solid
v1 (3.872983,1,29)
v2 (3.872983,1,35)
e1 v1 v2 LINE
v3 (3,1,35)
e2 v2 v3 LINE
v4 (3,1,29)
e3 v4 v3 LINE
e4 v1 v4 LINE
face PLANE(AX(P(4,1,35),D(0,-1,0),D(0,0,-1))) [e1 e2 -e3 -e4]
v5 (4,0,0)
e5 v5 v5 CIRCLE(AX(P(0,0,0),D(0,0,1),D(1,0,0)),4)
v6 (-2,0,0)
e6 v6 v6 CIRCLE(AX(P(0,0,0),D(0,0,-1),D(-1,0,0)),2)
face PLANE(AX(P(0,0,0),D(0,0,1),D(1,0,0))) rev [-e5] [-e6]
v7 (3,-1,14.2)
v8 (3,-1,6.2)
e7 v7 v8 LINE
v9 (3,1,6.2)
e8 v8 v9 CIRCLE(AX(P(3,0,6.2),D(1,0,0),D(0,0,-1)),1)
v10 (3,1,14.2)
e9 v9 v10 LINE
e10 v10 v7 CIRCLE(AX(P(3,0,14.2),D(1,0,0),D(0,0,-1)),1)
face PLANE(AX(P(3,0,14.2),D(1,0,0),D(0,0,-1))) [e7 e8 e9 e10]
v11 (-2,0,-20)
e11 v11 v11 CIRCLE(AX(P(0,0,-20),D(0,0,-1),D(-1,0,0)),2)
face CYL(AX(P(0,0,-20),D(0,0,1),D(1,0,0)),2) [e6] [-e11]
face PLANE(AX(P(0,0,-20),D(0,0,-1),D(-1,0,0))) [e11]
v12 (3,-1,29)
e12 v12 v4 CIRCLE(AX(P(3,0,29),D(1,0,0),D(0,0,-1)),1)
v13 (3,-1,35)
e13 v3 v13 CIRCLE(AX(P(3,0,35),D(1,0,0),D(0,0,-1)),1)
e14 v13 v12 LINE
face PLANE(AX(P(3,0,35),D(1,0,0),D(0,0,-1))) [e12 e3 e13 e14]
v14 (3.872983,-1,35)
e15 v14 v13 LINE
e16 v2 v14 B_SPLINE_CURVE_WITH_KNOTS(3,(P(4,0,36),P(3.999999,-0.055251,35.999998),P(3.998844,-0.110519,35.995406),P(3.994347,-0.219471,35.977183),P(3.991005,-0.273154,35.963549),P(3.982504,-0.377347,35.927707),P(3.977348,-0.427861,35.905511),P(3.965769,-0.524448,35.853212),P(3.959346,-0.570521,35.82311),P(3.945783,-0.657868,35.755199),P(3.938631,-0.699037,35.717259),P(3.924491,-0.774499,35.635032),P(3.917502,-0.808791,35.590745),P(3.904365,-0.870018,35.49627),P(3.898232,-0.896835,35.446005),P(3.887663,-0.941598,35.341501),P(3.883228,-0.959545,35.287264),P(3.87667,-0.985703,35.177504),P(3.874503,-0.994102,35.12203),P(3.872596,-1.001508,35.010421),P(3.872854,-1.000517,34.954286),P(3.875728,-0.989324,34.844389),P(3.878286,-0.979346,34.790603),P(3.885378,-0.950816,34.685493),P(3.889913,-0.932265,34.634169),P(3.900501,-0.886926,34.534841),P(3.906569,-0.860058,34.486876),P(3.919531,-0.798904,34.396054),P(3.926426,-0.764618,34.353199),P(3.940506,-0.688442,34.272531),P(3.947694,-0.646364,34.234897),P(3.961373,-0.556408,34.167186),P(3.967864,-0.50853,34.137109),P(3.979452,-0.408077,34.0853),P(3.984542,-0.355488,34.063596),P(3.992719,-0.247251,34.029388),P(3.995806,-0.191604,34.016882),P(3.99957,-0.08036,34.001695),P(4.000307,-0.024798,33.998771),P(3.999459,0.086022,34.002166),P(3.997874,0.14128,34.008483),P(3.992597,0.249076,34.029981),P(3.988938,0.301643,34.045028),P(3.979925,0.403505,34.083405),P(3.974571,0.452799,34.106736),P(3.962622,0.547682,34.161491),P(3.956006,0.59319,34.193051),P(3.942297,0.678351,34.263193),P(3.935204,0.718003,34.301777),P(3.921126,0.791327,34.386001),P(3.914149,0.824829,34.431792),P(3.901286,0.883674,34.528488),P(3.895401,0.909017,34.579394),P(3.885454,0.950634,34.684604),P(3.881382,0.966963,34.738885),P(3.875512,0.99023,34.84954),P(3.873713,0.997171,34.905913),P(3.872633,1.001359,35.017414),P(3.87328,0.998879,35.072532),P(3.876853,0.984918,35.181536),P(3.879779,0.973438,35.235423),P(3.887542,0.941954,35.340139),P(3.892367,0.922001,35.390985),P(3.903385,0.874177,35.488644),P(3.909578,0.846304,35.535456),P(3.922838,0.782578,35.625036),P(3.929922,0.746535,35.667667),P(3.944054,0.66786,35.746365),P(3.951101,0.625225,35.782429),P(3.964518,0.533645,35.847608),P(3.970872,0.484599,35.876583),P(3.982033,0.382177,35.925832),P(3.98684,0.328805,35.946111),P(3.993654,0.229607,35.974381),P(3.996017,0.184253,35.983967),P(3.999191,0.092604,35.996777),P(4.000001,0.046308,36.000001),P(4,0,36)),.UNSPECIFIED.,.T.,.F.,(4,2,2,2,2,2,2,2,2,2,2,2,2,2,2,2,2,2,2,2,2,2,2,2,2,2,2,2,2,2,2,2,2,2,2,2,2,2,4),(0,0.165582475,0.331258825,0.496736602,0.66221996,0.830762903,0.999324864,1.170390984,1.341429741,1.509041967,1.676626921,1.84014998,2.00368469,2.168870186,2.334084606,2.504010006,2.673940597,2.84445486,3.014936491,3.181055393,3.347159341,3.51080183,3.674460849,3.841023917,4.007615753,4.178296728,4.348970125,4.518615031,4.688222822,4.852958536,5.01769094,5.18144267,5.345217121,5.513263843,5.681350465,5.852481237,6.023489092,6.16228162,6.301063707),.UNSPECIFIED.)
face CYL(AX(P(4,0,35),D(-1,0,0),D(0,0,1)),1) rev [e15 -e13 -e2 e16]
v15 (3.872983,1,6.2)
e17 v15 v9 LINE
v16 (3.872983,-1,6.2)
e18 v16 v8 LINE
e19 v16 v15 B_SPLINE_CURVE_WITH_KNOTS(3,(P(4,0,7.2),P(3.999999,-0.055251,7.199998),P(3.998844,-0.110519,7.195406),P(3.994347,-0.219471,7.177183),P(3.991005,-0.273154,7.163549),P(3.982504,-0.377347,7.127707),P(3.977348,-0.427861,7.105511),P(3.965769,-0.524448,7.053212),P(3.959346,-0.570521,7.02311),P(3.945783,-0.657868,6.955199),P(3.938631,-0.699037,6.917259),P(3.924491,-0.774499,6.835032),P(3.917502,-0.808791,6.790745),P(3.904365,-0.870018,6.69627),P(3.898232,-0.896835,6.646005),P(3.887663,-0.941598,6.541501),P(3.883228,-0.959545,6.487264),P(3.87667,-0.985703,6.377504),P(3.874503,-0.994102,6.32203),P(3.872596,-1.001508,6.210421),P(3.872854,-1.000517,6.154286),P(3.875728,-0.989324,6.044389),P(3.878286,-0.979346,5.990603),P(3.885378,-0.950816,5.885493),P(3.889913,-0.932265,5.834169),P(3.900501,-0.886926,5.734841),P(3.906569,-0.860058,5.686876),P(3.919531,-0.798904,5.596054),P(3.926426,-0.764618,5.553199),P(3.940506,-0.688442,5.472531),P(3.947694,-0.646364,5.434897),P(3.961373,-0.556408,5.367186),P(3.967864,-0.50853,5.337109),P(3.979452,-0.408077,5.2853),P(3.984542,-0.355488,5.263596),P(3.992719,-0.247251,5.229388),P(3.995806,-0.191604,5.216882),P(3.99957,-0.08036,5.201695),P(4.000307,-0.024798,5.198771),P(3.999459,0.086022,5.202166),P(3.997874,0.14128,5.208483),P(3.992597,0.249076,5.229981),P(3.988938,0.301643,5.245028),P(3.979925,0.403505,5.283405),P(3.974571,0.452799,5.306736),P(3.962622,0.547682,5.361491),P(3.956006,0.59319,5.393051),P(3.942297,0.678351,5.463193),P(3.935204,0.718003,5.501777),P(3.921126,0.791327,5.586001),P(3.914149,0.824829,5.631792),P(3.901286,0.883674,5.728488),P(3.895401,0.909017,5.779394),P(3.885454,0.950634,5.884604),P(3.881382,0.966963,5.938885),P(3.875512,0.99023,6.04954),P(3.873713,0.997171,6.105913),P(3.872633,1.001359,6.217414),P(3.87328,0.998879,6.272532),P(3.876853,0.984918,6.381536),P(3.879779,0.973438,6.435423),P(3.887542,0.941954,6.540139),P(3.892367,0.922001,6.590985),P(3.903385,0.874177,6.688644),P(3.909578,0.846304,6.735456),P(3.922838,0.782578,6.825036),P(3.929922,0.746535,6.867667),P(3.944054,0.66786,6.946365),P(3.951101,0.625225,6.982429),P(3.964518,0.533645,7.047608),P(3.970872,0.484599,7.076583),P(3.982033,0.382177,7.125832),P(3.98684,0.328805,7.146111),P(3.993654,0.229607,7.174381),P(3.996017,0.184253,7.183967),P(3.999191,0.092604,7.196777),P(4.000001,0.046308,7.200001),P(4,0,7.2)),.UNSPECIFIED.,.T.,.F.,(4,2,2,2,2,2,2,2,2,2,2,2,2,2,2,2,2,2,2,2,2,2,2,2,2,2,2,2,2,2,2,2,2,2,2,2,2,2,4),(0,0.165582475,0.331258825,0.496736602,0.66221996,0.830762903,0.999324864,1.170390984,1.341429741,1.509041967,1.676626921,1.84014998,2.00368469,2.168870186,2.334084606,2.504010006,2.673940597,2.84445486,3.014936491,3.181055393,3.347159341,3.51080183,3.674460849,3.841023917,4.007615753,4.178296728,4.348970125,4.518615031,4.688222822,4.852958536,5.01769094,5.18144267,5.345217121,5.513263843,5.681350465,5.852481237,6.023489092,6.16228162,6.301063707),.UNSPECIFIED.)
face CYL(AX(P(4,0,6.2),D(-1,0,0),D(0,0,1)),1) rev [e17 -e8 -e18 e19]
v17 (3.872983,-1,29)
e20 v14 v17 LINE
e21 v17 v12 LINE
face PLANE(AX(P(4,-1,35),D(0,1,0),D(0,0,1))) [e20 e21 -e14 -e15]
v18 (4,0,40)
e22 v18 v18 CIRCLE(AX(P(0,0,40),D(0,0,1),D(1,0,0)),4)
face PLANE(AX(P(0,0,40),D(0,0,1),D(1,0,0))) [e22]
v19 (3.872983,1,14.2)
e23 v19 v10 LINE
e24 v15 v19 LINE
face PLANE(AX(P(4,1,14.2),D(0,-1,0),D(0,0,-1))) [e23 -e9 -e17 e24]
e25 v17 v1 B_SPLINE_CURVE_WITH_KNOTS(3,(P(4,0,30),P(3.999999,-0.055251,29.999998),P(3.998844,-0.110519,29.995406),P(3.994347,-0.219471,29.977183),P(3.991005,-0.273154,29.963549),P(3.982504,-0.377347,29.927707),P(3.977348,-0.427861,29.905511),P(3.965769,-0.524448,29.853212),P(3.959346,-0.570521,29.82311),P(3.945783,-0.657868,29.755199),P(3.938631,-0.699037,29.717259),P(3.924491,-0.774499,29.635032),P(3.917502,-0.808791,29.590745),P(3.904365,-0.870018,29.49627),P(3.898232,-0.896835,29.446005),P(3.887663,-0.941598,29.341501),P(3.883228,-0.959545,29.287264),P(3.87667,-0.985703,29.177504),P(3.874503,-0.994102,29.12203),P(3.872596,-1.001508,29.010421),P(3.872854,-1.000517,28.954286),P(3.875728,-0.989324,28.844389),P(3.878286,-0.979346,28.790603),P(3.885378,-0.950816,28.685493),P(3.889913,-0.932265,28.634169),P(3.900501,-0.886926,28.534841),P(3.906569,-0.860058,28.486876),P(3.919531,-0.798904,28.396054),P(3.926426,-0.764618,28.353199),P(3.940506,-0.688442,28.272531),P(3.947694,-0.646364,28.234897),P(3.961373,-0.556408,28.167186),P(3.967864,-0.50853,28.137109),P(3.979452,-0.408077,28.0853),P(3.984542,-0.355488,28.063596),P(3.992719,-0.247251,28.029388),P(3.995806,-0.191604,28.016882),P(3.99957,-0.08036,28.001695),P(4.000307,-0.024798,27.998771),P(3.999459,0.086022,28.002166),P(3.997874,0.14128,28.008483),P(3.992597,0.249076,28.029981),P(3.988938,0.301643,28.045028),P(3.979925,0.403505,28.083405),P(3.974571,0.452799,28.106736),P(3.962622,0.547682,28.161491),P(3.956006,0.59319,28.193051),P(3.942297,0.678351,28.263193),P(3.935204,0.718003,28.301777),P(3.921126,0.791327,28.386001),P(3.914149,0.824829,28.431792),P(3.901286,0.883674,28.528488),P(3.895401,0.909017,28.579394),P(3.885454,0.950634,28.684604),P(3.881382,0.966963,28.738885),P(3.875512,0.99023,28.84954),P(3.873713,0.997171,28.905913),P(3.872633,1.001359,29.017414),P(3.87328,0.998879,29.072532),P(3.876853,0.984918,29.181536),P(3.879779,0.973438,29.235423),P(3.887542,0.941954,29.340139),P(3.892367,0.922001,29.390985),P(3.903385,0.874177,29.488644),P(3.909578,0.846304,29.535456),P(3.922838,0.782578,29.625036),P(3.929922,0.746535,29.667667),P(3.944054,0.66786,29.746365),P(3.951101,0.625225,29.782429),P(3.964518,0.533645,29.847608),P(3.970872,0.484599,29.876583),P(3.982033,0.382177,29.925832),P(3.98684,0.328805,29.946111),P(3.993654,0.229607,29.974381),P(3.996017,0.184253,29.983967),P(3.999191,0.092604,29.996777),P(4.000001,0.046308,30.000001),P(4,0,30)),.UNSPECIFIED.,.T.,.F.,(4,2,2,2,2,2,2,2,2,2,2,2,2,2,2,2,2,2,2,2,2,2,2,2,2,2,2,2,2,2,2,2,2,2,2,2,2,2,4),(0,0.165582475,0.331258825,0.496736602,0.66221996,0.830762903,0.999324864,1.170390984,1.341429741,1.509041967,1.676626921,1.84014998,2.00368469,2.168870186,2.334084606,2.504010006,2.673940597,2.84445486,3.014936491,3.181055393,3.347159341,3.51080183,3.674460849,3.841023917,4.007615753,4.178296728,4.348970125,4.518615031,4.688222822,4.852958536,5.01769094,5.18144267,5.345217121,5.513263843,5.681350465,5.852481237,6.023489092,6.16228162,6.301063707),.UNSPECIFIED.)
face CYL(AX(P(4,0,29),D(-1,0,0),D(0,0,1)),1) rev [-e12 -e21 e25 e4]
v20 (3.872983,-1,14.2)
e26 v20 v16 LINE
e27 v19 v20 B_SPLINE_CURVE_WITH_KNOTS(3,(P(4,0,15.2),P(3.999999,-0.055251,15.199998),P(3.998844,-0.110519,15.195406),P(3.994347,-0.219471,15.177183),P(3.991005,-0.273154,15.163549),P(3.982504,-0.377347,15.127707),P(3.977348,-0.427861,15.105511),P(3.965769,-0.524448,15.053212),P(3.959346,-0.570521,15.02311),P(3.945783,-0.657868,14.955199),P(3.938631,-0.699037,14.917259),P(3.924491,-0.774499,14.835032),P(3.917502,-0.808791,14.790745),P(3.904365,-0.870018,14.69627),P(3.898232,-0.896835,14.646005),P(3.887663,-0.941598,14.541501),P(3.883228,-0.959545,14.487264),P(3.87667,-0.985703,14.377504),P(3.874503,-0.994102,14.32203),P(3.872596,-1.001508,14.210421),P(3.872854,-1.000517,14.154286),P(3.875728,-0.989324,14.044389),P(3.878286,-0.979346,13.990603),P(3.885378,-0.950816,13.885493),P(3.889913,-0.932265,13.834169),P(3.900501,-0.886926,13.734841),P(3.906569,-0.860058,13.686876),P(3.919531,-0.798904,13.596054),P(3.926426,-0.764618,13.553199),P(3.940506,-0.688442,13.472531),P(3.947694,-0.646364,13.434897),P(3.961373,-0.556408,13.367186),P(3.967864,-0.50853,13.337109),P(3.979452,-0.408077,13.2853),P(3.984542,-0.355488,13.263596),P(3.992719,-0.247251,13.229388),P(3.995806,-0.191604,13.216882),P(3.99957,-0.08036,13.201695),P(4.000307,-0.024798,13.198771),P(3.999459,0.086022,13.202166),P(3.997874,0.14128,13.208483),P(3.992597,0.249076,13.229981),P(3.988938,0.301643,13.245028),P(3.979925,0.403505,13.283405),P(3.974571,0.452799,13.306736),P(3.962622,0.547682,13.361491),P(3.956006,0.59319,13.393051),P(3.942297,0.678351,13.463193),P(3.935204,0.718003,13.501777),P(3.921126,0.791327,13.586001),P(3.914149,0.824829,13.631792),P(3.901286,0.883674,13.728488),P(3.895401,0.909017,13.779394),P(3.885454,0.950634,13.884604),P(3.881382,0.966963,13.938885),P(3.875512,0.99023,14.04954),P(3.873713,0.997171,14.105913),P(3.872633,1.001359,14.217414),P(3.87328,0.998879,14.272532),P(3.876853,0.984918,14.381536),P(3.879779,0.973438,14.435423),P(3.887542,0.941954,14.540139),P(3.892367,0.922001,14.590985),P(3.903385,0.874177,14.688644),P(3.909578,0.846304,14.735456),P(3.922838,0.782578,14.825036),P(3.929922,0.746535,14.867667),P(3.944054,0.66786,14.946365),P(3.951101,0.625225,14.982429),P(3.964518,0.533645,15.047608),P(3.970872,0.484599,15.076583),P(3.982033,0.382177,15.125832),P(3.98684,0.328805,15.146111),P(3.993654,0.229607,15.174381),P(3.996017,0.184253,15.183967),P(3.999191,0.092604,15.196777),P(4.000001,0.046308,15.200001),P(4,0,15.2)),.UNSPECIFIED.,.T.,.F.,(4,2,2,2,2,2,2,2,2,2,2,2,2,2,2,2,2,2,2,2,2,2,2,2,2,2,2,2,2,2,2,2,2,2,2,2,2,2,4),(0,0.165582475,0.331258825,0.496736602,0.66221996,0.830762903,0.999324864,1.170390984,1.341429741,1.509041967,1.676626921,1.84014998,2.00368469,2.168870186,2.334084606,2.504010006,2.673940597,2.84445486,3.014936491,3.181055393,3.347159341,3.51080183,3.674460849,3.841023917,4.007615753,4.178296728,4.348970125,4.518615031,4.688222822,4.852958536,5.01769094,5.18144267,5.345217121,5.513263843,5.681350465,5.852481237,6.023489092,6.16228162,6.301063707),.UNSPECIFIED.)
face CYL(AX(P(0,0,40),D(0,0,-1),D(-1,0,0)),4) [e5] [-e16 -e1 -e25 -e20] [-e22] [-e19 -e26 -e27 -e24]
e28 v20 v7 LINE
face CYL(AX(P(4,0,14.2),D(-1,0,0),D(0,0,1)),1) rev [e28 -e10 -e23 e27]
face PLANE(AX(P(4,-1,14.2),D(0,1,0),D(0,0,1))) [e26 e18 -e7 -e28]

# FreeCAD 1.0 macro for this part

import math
import FreeCAD as App
import Part
import Sketcher

V = App.Vector
Q = App.Units.Quantity

doc = App.newDocument("Part")
body = doc.addObject("PartDesign::Body", "Body")

# Sketch on XY plane
sketch1 = body.newObject("Sketcher::SketchObject", "Sketch")
sketch1.AttachmentSupport = (doc.getObject("XY_Plane"), [""])
sketch1.MapMode = "FlatFace"
sketch1.addGeometry(Part.Circle(V(0, 0, 0), V(0, 0, 1), 4), False)
sketch1.addConstraint([
    Sketcher.Constraint("Coincident", 0, 3, -1, 1),
    Sketcher.Constraint("Diameter", 0, Q("8 mm")),
])
pad1 = body.newObject("PartDesign::Pad", "Pad")
pad1.Profile = sketch1
pad1.Length = 40

# Sketch on XY plane
sketch2 = body.newObject("Sketcher::SketchObject", "Sketch001")
sketch2.AttachmentSupport = (doc.getObject("XY_Plane"), [""])
sketch2.MapMode = "FlatFace"
sketch2.addGeometry(Part.Circle(V(0, 0, 0), V(0, 0, 1), 2), False)
sketch2.addConstraint([
    Sketcher.Constraint("Coincident", 0, 3, -1, 1),
    Sketcher.Constraint("Diameter", 0, Q("4 mm")),
])
pad2 = body.newObject("PartDesign::Pad", "Pad001")
pad2.Profile = sketch2
pad2.Length = 20
pad2.Reversed = True

# Sketch on YZ plane
sketch3 = body.newObject("Sketcher::SketchObject", "Sketch002")
sketch3.AttachmentSupport = (doc.getObject("YZ_Plane"), [""])
sketch3.MapMode = "FlatFace"
sketch3.AttachmentOffset = App.Placement(V(0, 0, 3), App.Rotation())
sketch3.addGeometry([
    Part.LineSegment(V(1, 29, 0), V(1, 35, 0)),  # 0
    Part.ArcOfCircle(Part.Circle(V(0, 35, 0), V(0, 0, 1), 1), math.radians(0), math.radians(180)),  # 1
    Part.LineSegment(V(-1, 35, 0), V(-1, 29, 0)),  # 2
    Part.ArcOfCircle(Part.Circle(V(0, 29, 0), V(0, 0, 1), 1), math.radians(180), math.radians(360)),  # 3
    Part.LineSegment(V(1, 6.2, 0), V(1, 14.2, 0)),  # 4
    Part.ArcOfCircle(Part.Circle(V(0, 14.2, 0), V(0, 0, 1), 1), math.radians(0), math.radians(180)),  # 5
    Part.LineSegment(V(-1, 14.2, 0), V(-1, 6.2, 0)),  # 6
    Part.ArcOfCircle(Part.Circle(V(0, 6.2, 0), V(0, 0, 1), 1), math.radians(180), math.radians(360)),  # 7
], False)
sketch3.addConstraint([
    Sketcher.Constraint("Tangent", 0, 2, 1, 1),
    Sketcher.Constraint("Tangent", 1, 2, 2, 1),
    Sketcher.Constraint("Tangent", 2, 2, 3, 1),
    Sketcher.Constraint("Tangent", 3, 2, 0, 1),
    Sketcher.Constraint("Tangent", 4, 2, 5, 1),
    Sketcher.Constraint("Tangent", 5, 2, 6, 1),
    Sketcher.Constraint("Tangent", 6, 2, 7, 1),
    Sketcher.Constraint("Tangent", 7, 2, 4, 1),
    Sketcher.Constraint("Vertical", 0),
    Sketcher.Constraint("Vertical", 2),
    Sketcher.Constraint("Vertical", 4),
    Sketcher.Constraint("Vertical", 6),
    Sketcher.Constraint("Equal", 3, 5),
    Sketcher.Constraint("PointOnObject", 1, 3, -2),
    Sketcher.Constraint("PointOnObject", 5, 3, -2),
    Sketcher.Constraint("Radius", 1, Q("1 mm")),
    Sketcher.Constraint("DistanceY", 0, 1, 0, 2, Q("6 mm")),
    Sketcher.Constraint("DistanceY", 4, 1, 4, 2, Q("8 mm")),
    Sketcher.Constraint("DistanceY", -1, 1, 1, 3, Q("35 mm")),
    Sketcher.Constraint("DistanceY", -1, 1, 5, 3, Q("14.2 mm")),
])
pocket1 = body.newObject("PartDesign::Pocket", "Pocket")
pocket1.Profile = sketch3
pocket1.Type = "ThroughAll"
pocket1.Reversed = True

doc.recompute()
